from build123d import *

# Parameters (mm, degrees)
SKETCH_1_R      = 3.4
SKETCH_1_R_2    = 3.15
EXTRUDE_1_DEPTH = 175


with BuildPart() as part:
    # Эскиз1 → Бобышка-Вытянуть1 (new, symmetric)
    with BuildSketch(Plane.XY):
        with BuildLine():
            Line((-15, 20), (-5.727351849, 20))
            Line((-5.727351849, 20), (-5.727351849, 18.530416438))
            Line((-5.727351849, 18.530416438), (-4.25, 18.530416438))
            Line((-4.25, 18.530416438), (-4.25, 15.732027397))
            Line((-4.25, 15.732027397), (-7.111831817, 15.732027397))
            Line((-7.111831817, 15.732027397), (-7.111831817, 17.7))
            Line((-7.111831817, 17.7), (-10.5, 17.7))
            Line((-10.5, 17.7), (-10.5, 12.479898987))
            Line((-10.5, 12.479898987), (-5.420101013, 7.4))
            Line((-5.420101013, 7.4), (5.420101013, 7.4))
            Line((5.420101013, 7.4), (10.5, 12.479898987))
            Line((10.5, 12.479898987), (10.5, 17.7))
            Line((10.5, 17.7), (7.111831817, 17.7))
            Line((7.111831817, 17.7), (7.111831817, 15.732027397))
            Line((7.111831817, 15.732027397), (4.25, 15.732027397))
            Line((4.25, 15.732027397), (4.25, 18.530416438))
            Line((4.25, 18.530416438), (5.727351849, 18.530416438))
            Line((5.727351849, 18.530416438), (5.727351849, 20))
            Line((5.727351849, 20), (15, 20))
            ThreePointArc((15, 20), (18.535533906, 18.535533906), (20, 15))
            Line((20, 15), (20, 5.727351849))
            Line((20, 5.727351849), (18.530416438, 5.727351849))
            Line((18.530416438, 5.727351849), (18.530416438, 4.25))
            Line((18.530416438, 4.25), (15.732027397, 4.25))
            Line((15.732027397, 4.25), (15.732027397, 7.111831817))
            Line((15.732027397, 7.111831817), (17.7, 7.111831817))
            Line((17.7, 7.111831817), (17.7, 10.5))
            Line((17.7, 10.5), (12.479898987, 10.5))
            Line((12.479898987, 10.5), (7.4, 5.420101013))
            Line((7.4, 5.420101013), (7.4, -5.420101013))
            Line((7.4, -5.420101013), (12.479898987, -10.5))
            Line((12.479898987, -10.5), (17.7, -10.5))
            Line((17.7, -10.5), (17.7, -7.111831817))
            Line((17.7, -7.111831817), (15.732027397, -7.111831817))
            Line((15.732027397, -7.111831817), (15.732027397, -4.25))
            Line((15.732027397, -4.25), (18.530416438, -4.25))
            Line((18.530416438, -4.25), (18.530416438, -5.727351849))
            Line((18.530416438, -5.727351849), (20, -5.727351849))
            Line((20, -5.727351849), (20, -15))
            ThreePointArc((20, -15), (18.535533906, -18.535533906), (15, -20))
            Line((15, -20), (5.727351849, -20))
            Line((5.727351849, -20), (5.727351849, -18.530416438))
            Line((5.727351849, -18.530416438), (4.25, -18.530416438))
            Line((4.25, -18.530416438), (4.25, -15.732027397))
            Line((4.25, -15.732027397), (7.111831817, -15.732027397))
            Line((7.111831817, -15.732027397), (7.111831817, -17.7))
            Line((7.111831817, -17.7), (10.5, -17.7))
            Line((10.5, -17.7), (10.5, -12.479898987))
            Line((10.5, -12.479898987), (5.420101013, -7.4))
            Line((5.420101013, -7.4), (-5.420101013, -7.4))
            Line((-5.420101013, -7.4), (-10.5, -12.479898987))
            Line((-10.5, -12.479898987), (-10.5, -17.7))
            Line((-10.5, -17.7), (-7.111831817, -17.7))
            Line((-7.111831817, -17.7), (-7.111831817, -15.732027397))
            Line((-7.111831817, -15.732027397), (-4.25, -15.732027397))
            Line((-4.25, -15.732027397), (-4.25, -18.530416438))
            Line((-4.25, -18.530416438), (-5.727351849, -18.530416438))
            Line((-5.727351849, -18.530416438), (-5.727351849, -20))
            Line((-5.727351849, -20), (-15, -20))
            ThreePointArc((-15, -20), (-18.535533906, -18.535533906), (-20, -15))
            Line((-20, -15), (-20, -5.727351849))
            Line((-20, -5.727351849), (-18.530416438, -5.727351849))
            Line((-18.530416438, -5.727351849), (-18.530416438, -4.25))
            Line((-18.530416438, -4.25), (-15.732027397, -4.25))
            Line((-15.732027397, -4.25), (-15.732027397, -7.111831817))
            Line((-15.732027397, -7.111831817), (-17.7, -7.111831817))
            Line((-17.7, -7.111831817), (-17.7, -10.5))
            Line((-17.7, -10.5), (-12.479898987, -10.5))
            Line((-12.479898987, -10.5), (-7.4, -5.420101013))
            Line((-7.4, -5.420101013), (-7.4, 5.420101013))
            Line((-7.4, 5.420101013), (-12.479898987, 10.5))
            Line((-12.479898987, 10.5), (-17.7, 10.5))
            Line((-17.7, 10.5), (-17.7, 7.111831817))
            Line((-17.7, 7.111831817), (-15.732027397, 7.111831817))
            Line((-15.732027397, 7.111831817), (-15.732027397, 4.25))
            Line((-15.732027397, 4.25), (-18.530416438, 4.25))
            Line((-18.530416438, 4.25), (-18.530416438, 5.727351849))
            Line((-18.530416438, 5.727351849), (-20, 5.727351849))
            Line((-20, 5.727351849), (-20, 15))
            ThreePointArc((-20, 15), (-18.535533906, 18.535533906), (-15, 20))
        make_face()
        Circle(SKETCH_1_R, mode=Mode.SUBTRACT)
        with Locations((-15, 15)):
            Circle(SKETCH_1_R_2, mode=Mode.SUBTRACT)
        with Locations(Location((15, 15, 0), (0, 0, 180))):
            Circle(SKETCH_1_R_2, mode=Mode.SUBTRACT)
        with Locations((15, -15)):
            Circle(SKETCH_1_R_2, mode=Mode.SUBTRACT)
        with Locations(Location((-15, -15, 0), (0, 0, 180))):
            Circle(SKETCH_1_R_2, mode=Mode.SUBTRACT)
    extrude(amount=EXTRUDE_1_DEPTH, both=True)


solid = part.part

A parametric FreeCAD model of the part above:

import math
import FreeCAD as App
import Part
import Sketcher
from FreeCAD import Vector

doc = App.newDocument("Part")
body = doc.addObject("PartDesign::Body", "Body")

# Sketch on XY plane
sketch1 = body.newObject("Sketcher::SketchObject", "Sketch")
sketch1.AttachmentSupport = (doc.getObject("XY_Plane"), [""])
sketch1.MapMode = "FlatFace"
sketch1.addGeometry([
    Part.LineSegment(Vector(-5.7, 20, 0), Vector(-15, 20, 0)),  # 0
    Part.ArcOfCircle(Part.Circle(Vector(-15, 15, 0), Vector(0, 0, 1), 5), math.radians(90), math.radians(180)),  # 1
    Part.LineSegment(Vector(-20, 15, 0), Vector(-20, 5.7, 0)),  # 2
    Part.LineSegment(Vector(-20, 5.7, 0), Vector(-18.5, 5.7, 0)),  # 3
    Part.LineSegment(Vector(-18.5, 5.7, 0), Vector(-18.5, 4.2, 0)),  # 4
    Part.LineSegment(Vector(-18.5, 4.2, 0), Vector(-15.7, 4.2, 0)),  # 5
    Part.LineSegment(Vector(-15.7, 4.2, 0), Vector(-15.7, 7.1, 0)),  # 6
    Part.LineSegment(Vector(-15.7, 7.1, 0), Vector(-17.7, 7.1, 0)),  # 7
    Part.LineSegment(Vector(-17.7, 7.1, 0), Vector(-17.7, 10.5, 0)),  # 8
    Part.LineSegment(Vector(-17.7, 10.5, 0), Vector(-12.5, 10.5, 0)),  # 9
    Part.LineSegment(Vector(-12.5, 10.5, 0), Vector(-7.4, 5.4, 0)),  # 10
    Part.LineSegment(Vector(-7.4, 5.4, 0), Vector(-7.4, -5.4, 0)),  # 11
    Part.LineSegment(Vector(-7.4, -5.4, 0), Vector(-12.5, -10.5, 0)),  # 12
    Part.LineSegment(Vector(-12.5, -10.5, 0), Vector(-17.7, -10.5, 0)),  # 13
    Part.LineSegment(Vector(-17.7, -10.5, 0), Vector(-17.7, -7.1, 0)),  # 14
    Part.LineSegment(Vector(-17.7, -7.1, 0), Vector(-15.7, -7.1, 0)),  # 15
    Part.LineSegment(Vector(-15.7, -7.1, 0), Vector(-15.7, -4.2, 0)),  # 16
    Part.LineSegment(Vector(-15.7, -4.2, 0), Vector(-18.5, -4.2, 0)),  # 17
    Part.LineSegment(Vector(-18.5, -4.2, 0), Vector(-18.5, -5.7, 0)),  # 18
    Part.LineSegment(Vector(-18.5, -5.7, 0), Vector(-20, -5.7, 0)),  # 19
    Part.LineSegment(Vector(-20, -5.7, 0), Vector(-20, -15, 0)),  # 20
    Part.ArcOfCircle(Part.Circle(Vector(-15, -15, 0), Vector(0, 0, 1), 5), math.radians(180), math.radians(270)),  # 21
    Part.LineSegment(Vector(-15, -20, 0), Vector(-5.7, -20, 0)),  # 22
    Part.LineSegment(Vector(-5.7, -20, 0), Vector(-5.7, -18.5, 0)),  # 23
    Part.LineSegment(Vector(-5.7, -18.5, 0), Vector(-4.2, -18.5, 0)),  # 24
    Part.LineSegment(Vector(-4.2, -18.5, 0), Vector(-4.2, -15.7, 0)),  # 25
    Part.LineSegment(Vector(-4.2, -15.7, 0), Vector(-7.1, -15.7, 0)),  # 26
    Part.LineSegment(Vector(-7.1, -15.7, 0), Vector(-7.1, -17.7, 0)),  # 27
    Part.LineSegment(Vector(-7.1, -17.7, 0), Vector(-10.5, -17.7, 0)),  # 28
    Part.LineSegment(Vector(-10.5, -17.7, 0), Vector(-10.5, -12.5, 0)),  # 29
    Part.LineSegment(Vector(-10.5, -12.5, 0), Vector(-5.4, -7.4, 0)),  # 30
    Part.LineSegment(Vector(-5.4, -7.4, 0), Vector(5.4, -7.4, 0)),  # 31
    Part.LineSegment(Vector(5.4, -7.4, 0), Vector(10.5, -12.5, 0)),  # 32
    Part.LineSegment(Vector(10.5, -12.5, 0), Vector(10.5, -17.7, 0)),  # 33
    Part.LineSegment(Vector(10.5, -17.7, 0), Vector(7.1, -17.7, 0)),  # 34
    Part.LineSegment(Vector(7.1, -17.7, 0), Vector(7.1, -15.7, 0)),  # 35
    Part.LineSegment(Vector(7.1, -15.7, 0), Vector(4.2, -15.7, 0)),  # 36
    Part.LineSegment(Vector(4.2, -15.7, 0), Vector(4.2, -18.5, 0)),  # 37
    Part.LineSegment(Vector(4.2, -18.5, 0), Vector(5.7, -18.5, 0)),  # 38
    Part.LineSegment(Vector(5.7, -18.5, 0), Vector(5.7, -20, 0)),  # 39
    Part.LineSegment(Vector(5.7, -20, 0), Vector(15, -20, 0)),  # 40
    Part.ArcOfCircle(Part.Circle(Vector(15, -15, 0), Vector(0, 0, 1), 5), math.radians(-90), math.radians(0)),  # 41
    Part.LineSegment(Vector(20, -15, 0), Vector(20, -5.7, 0)),  # 42
    Part.LineSegment(Vector(20, -5.7, 0), Vector(18.5, -5.7, 0)),  # 43
    Part.LineSegment(Vector(18.5, -5.7, 0), Vector(18.5, -4.2, 0)),  # 44
    Part.LineSegment(Vector(18.5, -4.2, 0), Vector(15.7, -4.2, 0)),  # 45
    Part.LineSegment(Vector(15.7, -4.2, 0), Vector(15.7, -7.1, 0)),  # 46
    Part.LineSegment(Vector(15.7, -7.1, 0), Vector(17.7, -7.1, 0)),  # 47
    Part.LineSegment(Vector(17.7, -7.1, 0), Vector(17.7, -10.5, 0)),  # 48
    Part.LineSegment(Vector(17.7, -10.5, 0), Vector(12.5, -10.5, 0)),  # 49
    Part.LineSegment(Vector(12.5, -10.5, 0), Vector(7.4, -5.4, 0)),  # 50
    Part.LineSegment(Vector(7.4, -5.4, 0), Vector(7.4, 5.4, 0)),  # 51
    Part.LineSegment(Vector(7.4, 5.4, 0), Vector(12.5, 10.5, 0)),  # 52
    Part.LineSegment(Vector(12.5, 10.5, 0), Vector(17.7, 10.5, 0)),  # 53
    Part.LineSegment(Vector(17.7, 10.5, 0), Vector(17.7, 7.1, 0)),  # 54
    Part.LineSegment(Vector(17.7, 7.1, 0), Vector(15.7, 7.1, 0)),  # 55
    Part.LineSegment(Vector(15.7, 7.1, 0), Vector(15.7, 4.2, 0)),  # 56
    Part.LineSegment(Vector(15.7, 4.2, 0), Vector(18.5, 4.2, 0)),  # 57
    Part.LineSegment(Vector(18.5, 4.2, 0), Vector(18.5, 5.7, 0)),  # 58
    Part.LineSegment(Vector(18.5, 5.7, 0), Vector(20, 5.7, 0)),  # 59
    Part.LineSegment(Vector(20, 5.7, 0), Vector(20, 15, 0)),  # 60
    Part.ArcOfCircle(Part.Circle(Vector(15, 15, 0), Vector(0, 0, 1), 5), math.radians(0), math.radians(90)),  # 61
    Part.LineSegment(Vector(15, 20, 0), Vector(5.7, 20, 0)),  # 62
    Part.LineSegment(Vector(5.7, 20, 0), Vector(5.7, 18.5, 0)),  # 63
    Part.LineSegment(Vector(5.7, 18.5, 0), Vector(4.2, 18.5, 0)),  # 64
    Part.LineSegment(Vector(4.2, 18.5, 0), Vector(4.2, 15.7, 0)),  # 65
    Part.LineSegment(Vector(4.2, 15.7, 0), Vector(7.1, 15.7, 0)),  # 66
    Part.LineSegment(Vector(7.1, 15.7, 0), Vector(7.1, 17.7, 0)),  # 67
    Part.LineSegment(Vector(7.1, 17.7, 0), Vector(10.5, 17.7, 0)),  # 68
    Part.LineSegment(Vector(10.5, 17.7, 0), Vector(10.5, 12.5, 0)),  # 69
    Part.LineSegment(Vector(10.5, 12.5, 0), Vector(5.4, 7.4, 0)),  # 70
    Part.LineSegment(Vector(5.4, 7.4, 0), Vector(-5.4, 7.4, 0)),  # 71
    Part.LineSegment(Vector(-5.4, 7.4, 0), Vector(-10.5, 12.5, 0)),  # 72
    Part.LineSegment(Vector(-10.5, 12.5, 0), Vector(-10.5, 17.7, 0)),  # 73
    Part.LineSegment(Vector(-10.5, 17.7, 0), Vector(-7.1, 17.7, 0)),  # 74
    Part.LineSegment(Vector(-7.1, 17.7, 0), Vector(-7.1, 15.7, 0)),  # 75
    Part.LineSegment(Vector(-7.1, 15.7, 0), Vector(-4.2, 15.7, 0)),  # 76
    Part.LineSegment(Vector(-4.2, 15.7, 0), Vector(-4.2, 18.5, 0)),  # 77
    Part.LineSegment(Vector(-4.2, 18.5, 0), Vector(-5.7, 18.5, 0)),  # 78
    Part.LineSegment(Vector(-5.7, 18.5, 0), Vector(-5.7, 20, 0)),  # 79
    Part.Circle(Vector(15, -15, 0), Vector(0, 0, 1), 3.1),  # 80
    Part.Circle(Vector(-15, -15, 0), Vector(0, 0, 1), 3.1),  # 81
    Part.Circle(Vector(15, 15, 0), Vector(0, 0, 1), 3.1),  # 82
    Part.Circle(Vector(0, 0, 0), Vector(0, 0, 1), 3.4),  # 83
    Part.Circle(Vector(-15, 15, 0), Vector(0, 0, 1), 3.1),  # 84
], False)
sketch1.addConstraint([
    Sketcher.Constraint("Tangent", 0, 2, 1, 1),
    Sketcher.Constraint("Tangent", 1, 2, 2, 1),
    Sketcher.Constraint("Coincident", 2, 2, 3, 1),
    Sketcher.Constraint("Coincident", 3, 2, 4, 1),
    Sketcher.Constraint("Coincident", 4, 2, 5, 1),
    Sketcher.Constraint("Coincident", 5, 2, 6, 1),
    Sketcher.Constraint("Coincident", 6, 2, 7, 1),
    Sketcher.Constraint("Coincident", 7, 2, 8, 1),
    Sketcher.Constraint("Coincident", 8, 2, 9, 1),
    Sketcher.Constraint("Coincident", 9, 2, 10, 1),
    Sketcher.Constraint("Coincident", 10, 2, 11, 1),
    Sketcher.Constraint("Coincident", 11, 2, 12, 1),
    Sketcher.Constraint("Coincident", 12, 2, 13, 1),
    Sketcher.Constraint("Coincident", 13, 2, 14, 1),
    Sketcher.Constraint("Coincident", 14, 2, 15, 1),
    Sketcher.Constraint("Coincident", 15, 2, 16, 1),
    Sketcher.Constraint("Coincident", 16, 2, 17, 1),
    Sketcher.Constraint("Coincident", 17, 2, 18, 1),
    Sketcher.Constraint("Coincident", 18, 2, 19, 1),
    Sketcher.Constraint("Coincident", 19, 2, 20, 1),
    Sketcher.Constraint("Tangent", 20, 2, 21, 1),
    Sketcher.Constraint("Tangent", 21, 2, 22, 1),
    Sketcher.Constraint("Coincident", 22, 2, 23, 1),
    Sketcher.Constraint("Coincident", 23, 2, 24, 1),
    Sketcher.Constraint("Coincident", 24, 2, 25, 1),
    Sketcher.Constraint("Coincident", 25, 2, 26, 1),
    Sketcher.Constraint("Coincident", 26, 2, 27, 1),
    Sketcher.Constraint("Coincident", 27, 2, 28, 1),
    Sketcher.Constraint("Coincident", 28, 2, 29, 1),
    Sketcher.Constraint("Coincident", 29, 2, 30, 1),
    Sketcher.Constraint("Coincident", 30, 2, 31, 1),
    Sketcher.Constraint("Coincident", 31, 2, 32, 1),
    Sketcher.Constraint("Coincident", 32, 2, 33, 1),
    Sketcher.Constraint("Coincident", 33, 2, 34, 1),
    Sketcher.Constraint("Coincident", 34, 2, 35, 1),
    Sketcher.Constraint("Coincident", 35, 2, 36, 1),
    Sketcher.Constraint("Coincident", 36, 2, 37, 1),
    Sketcher.Constraint("Coincident", 37, 2, 38, 1),
    Sketcher.Constraint("Coincident", 38, 2, 39, 1),
    Sketcher.Constraint("Coincident", 39, 2, 40, 1),
    Sketcher.Constraint("Tangent", 40, 2, 41, 1),
    Sketcher.Constraint("Tangent", 41, 2, 42, 1),
    Sketcher.Constraint("Coincident", 42, 2, 43, 1),
    Sketcher.Constraint("Coincident", 43, 2, 44, 1),
    Sketcher.Constraint("Coincident", 44, 2, 45, 1),
    Sketcher.Constraint("Coincident", 45, 2, 46, 1),
    Sketcher.Constraint("Coincident", 46, 2, 47, 1),
    Sketcher.Constraint("Coincident", 47, 2, 48, 1),
    Sketcher.Constraint("Coincident", 48, 2, 49, 1),
    Sketcher.Constraint("Coincident", 49, 2, 50, 1),
    Sketcher.Constraint("Coincident", 50, 2, 51, 1),
    Sketcher.Constraint("Coincident", 51, 2, 52, 1),
    Sketcher.Constraint("Coincident", 52, 2, 53, 1),
    Sketcher.Constraint("Coincident", 53, 2, 54, 1),
    Sketcher.Constraint("Coincident", 54, 2, 55, 1),
    Sketcher.Constraint("Coincident", 55, 2, 56, 1),
    Sketcher.Constraint("Coincident", 56, 2, 57, 1),
    Sketcher.Constraint("Coincident", 57, 2, 58, 1),
    Sketcher.Constraint("Coincident", 58, 2, 59, 1),
    Sketcher.Constraint("Coincident", 59, 2, 60, 1),
    Sketcher.Constraint("Tangent", 60, 2, 61, 1),
    Sketcher.Constraint("Tangent", 61, 2, 62, 1),
    Sketcher.Constraint("Coincident", 62, 2, 63, 1),
    Sketcher.Constraint("Coincident", 63, 2, 64, 1),
    Sketcher.Constraint("Coincident", 64, 2, 65, 1),
    Sketcher.Constraint("Coincident", 65, 2, 66, 1),
    Sketcher.Constraint("Coincident", 66, 2, 67, 1),
    Sketcher.Constraint("Coincident", 67, 2, 68, 1),
    Sketcher.Constraint("Coincident", 68, 2, 69, 1),
    Sketcher.Constraint("Coincident", 69, 2, 70, 1),
    Sketcher.Constraint("Coincident", 70, 2, 71, 1),
    Sketcher.Constraint("Coincident", 71, 2, 72, 1),
    Sketcher.Constraint("Coincident", 72, 2, 73, 1),
    Sketcher.Constraint("Coincident", 73, 2, 74, 1),
    Sketcher.Constraint("Coincident", 74, 2, 75, 1),
    Sketcher.Constraint("Coincident", 75, 2, 76, 1),
    Sketcher.Constraint("Coincident", 76, 2, 77, 1),
    Sketcher.Constraint("Coincident", 77, 2, 78, 1),
    Sketcher.Constraint("Coincident", 78, 2, 79, 1),
    Sketcher.Constraint("Coincident", 79, 2, 0, 1),
    Sketcher.Constraint("Horizontal", 0),
    Sketcher.Constraint("Vertical", 2),
    Sketcher.Constraint("Horizontal", 3),
    Sketcher.Constraint("Vertical", 4),
    Sketcher.Constraint("Horizontal", 5),
    Sketcher.Constraint("Vertical", 6),
    Sketcher.Constraint("Horizontal", 7),
    Sketcher.Constraint("Vertical", 8),
    Sketcher.Constraint("Horizontal", 9),
    Sketcher.Constraint("Vertical", 11),
    Sketcher.Constraint("Horizontal", 13),
    Sketcher.Constraint("Vertical", 14),
    Sketcher.Constraint("Horizontal", 15),
    Sketcher.Constraint("Vertical", 16),
    Sketcher.Constraint("Horizontal", 17),
    Sketcher.Constraint("Vertical", 18),
    Sketcher.Constraint("Horizontal", 19),
    Sketcher.Constraint("Vertical", 20),
    Sketcher.Constraint("Horizontal", 22),
    Sketcher.Constraint("Vertical", 23),
    Sketcher.Constraint("Horizontal", 24),
    Sketcher.Constraint("Vertical", 25),
    Sketcher.Constraint("Horizontal", 26),
    Sketcher.Constraint("Vertical", 27),
    Sketcher.Constraint("Horizontal", 28),
    Sketcher.Constraint("Vertical", 29),
    Sketcher.Constraint("Horizontal", 31),
    Sketcher.Constraint("Vertical", 33),
    Sketcher.Constraint("Horizontal", 34),
    Sketcher.Constraint("Vertical", 35),
    Sketcher.Constraint("Horizontal", 36),
    Sketcher.Constraint("Vertical", 37),
    Sketcher.Constraint("Horizontal", 38),
    Sketcher.Constraint("Vertical", 39),
    Sketcher.Constraint("Horizontal", 40),
    Sketcher.Constraint("Vertical", 42),
    Sketcher.Constraint("Horizontal", 43),
    Sketcher.Constraint("Vertical", 44),
    Sketcher.Constraint("Horizontal", 45),
    Sketcher.Constraint("Vertical", 46),
    Sketcher.Constraint("Horizontal", 47),
    Sketcher.Constraint("Vertical", 48),
    Sketcher.Constraint("Horizontal", 49),
    Sketcher.Constraint("Vertical", 51),
    Sketcher.Constraint("Horizontal", 53),
    Sketcher.Constraint("Vertical", 54),
    Sketcher.Constraint("Horizontal", 55),
    Sketcher.Constraint("Vertical", 56),
    Sketcher.Constraint("Horizontal", 57),
    Sketcher.Constraint("Vertical", 58),
    Sketcher.Constraint("Horizontal", 59),
    Sketcher.Constraint("Vertical", 60),
    Sketcher.Constraint("Horizontal", 62),
    Sketcher.Constraint("Vertical", 63),
    Sketcher.Constraint("Horizontal", 64),
    Sketcher.Constraint("Vertical", 65),
    Sketcher.Constraint("Horizontal", 66),
    Sketcher.Constraint("Vertical", 67),
    Sketcher.Constraint("Horizontal", 68),
    Sketcher.Constraint("Vertical", 69),
    Sketcher.Constraint("Horizontal", 71),
    Sketcher.Constraint("Vertical", 73),
    Sketcher.Constraint("Horizontal", 74),
    Sketcher.Constraint("Vertical", 75),
    Sketcher.Constraint("Horizontal", 76),
    Sketcher.Constraint("Vertical", 77),
    Sketcher.Constraint("Horizontal", 78),
    Sketcher.Constraint("Vertical", 79),
    Sketcher.Constraint("Coincident", 83, 3, -1, 1),
    Sketcher.Constraint("Coincident", 80, 3, 41, 3),
    Sketcher.Constraint("Coincident", 81, 3, 21, 3),
    Sketcher.Constraint("Coincident", 82, 3, 61, 3),
    Sketcher.Constraint("Coincident", 84, 3, 1, 3),
    Sketcher.Constraint("Equal", 1, 21),
    Sketcher.Constraint("Equal", 21, 41),
    Sketcher.Constraint("Equal", 41, 61),
    Sketcher.Constraint("Equal", 80, 81),
    Sketcher.Constraint("Equal", 81, 82),
    Sketcher.Constraint("Equal", 82, 84),
    Sketcher.Constraint("Symmetric", 1, 3, 41, 3, -1, 1),
    Sketcher.Constraint("Symmetric", 21, 3, 61, 3, -1, 1),
    Sketcher.Constraint("Symmetric", 3, 2, 43, 2, -1, 1),
    Sketcher.Constraint("Symmetric", 5, 2, 45, 2, -1, 1),
    Sketcher.Constraint("Symmetric", 7, 2, 47, 2, -1, 1),
    Sketcher.Constraint("Symmetric", 9, 2, 49, 2, -1, 1),
    Sketcher.Constraint("Symmetric", 10, 2, 50, 2, -1, 1),
    Sketcher.Constraint("Symmetric", 12, 2, 52, 2, -1, 1),
    Sketcher.Constraint("Symmetric", 14, 2, 54, 2, -1, 1),
    Sketcher.Constraint("Symmetric", 16, 2, 56, 2, -1, 1),
    Sketcher.Constraint("Symmetric", 18, 2, 58, 2, -1, 1),
    Sketcher.Constraint("Symmetric", 23, 2, 63, 2, -1, 1),
    Sketcher.Constraint("Symmetric", 25, 2, 65, 2, -1, 1),
    Sketcher.Constraint("Symmetric", 27, 2, 67, 2, -1, 1),
    Sketcher.Constraint("Symmetric", 29, 2, 69, 2, -1, 1),
    Sketcher.Constraint("Symmetric", 30, 2, 70, 2, -1, 1),
    Sketcher.Constraint("Symmetric", 32, 2, 72, 2, -1, 1),
    Sketcher.Constraint("Symmetric", 34, 2, 74, 2, -1, 1),
    Sketcher.Constraint("Symmetric", 36, 2, 76, 2, -1, 1),
    Sketcher.Constraint("Symmetric", 38, 2, 78, 2, -1, 1),
    Sketcher.Constraint("Symmetric", 21, 3, 41, 3, -2),
    Sketcher.Constraint("Symmetric", 29, 2, 32, 2, -2),
    Sketcher.Constraint("Symmetric", 27, 2, 34, 2, -2),
    Sketcher.Constraint("Symmetric", 25, 2, 36, 2, -2),
    Sketcher.Constraint("Symmetric", 23, 2, 38, 2, -2),
    Sketcher.Constraint("Symmetric", 18, 2, 43, 2, -2),
    Sketcher.Constraint("Symmetric", 16, 2, 45, 2, -2),
    Sketcher.Constraint("Symmetric", 14, 2, 47, 2, -2),
    Sketcher.Constraint("Symmetric", 12, 2, 49, 2, -2),
    Sketcher.Constraint("Perpendicular", 10, 12),
    Sketcher.Constraint("Parallel", 12, 30),
    Sketcher.Constraint("Perpendicular", 30, 32),
    Sketcher.Constraint("Perpendicular", 50, 52),
    Sketcher.Constraint("Perpendicular", 70, 72),
    Sketcher.Constraint("Horizontal", 11, 2, 50, 2),
    Sketcher.Constraint("Equal", 62, 2),
    Sketcher.Constraint("Equal", 78, 4),
    Sketcher.Constraint("Equal", 76, 6),
    Sketcher.Constraint("Equal", 74, 8),
    Sketcher.Constraint("Equal", 71, 11),
    Sketcher.Constraint("Equal", 59, 23),
    Sketcher.Constraint("Equal", 57, 25),
    Sketcher.Constraint("Equal", 55, 27),
    Sketcher.Constraint("Equal", 53, 29),
    Sketcher.Constraint("Equal", 12, 30),
    Sketcher.Constraint("Radius", 1, 5.0),
    Sketcher.Constraint("Diameter", 80, 6.3),
    Sketcher.Constraint("Diameter", 83, 6.8),
    Sketcher.Constraint("DistanceX", 1, 3, -1, 1, 15.0),
    Sketcher.Constraint("DistanceX", 7, 2, -1, 1, 17.7),
    Sketcher.Constraint("DistanceY", -1, 1, 8, 2, 10.5),
    Sketcher.Constraint("DistanceX", 10, 2, -1, 1, 7.4),
    Sketcher.Constraint("DistanceY", -1, 1, 4, 2, 4.25),
    Sketcher.Constraint("DistanceX", 9, 1, 9, 2, 5.220101),
    Sketcher.Constraint("DistanceX", 0, 2, 0, 1, 9.272648),
    Sketcher.Constraint("DistanceX", 5, 1, 5, 2, 2.798389),
    Sketcher.Constraint("DistanceX", 26, 2, 26, 1, 2.861832),
    Sketcher.Constraint("DistanceX", 3, 1, 3, 2, 1.469584),
])
pad1 = body.newObject("PartDesign::Pad", "Pad")
pad1.Profile = sketch1
pad1.Length = 350
pad1.Midplane = True

doc.recompute()
